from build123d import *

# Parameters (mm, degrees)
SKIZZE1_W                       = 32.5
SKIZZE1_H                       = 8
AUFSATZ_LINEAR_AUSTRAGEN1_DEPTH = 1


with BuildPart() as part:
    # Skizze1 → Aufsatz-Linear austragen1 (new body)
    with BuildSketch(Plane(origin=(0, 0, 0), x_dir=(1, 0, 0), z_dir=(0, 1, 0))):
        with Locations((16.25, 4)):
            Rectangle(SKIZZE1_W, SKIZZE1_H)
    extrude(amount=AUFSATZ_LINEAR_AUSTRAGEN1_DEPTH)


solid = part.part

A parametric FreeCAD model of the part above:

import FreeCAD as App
import Part
import Sketcher
from FreeCAD import Vector

doc = App.newDocument("Part")
params = doc.addObject("Spreadsheet::Sheet", "Params")
for row, (alias, value) in enumerate([
    ("sketch1_height", "8 mm"),
    ("sketch1_width", "32.5 mm"),
    ("pad1_length", "1 mm"),
], start=1):
    params.set(f"A{row}", alias)
    params.set(f"B{row}", "=" + value)
    params.setAlias(f"B{row}", alias)

body = doc.addObject("PartDesign::Body", "Body")

# Sketch on XZ plane
sketch1 = doc.addObject("Sketcher::SketchObject", "Sketch")
body.addObject(sketch1)
sketch1.AttachmentSupport = (doc.XZ_Plane, [""])
sketch1.MapMode = "FlatFace"
sketch1.addGeometry(Part.LineSegment(Vector(0, -8, 0), Vector(0, 0, 0)), False)
sketch1.addGeometry(Part.LineSegment(Vector(0, 0, 0), Vector(32, 0, 0)), False)
sketch1.addGeometry(Part.LineSegment(Vector(32, 0, 0), Vector(32, -8, 0)), False)
sketch1.addGeometry(Part.LineSegment(Vector(32, -8, 0), Vector(0, -8, 0)), False)
sketch1.addConstraint(Sketcher.Constraint("Coincident", 0, 2, 1, 1))
sketch1.addConstraint(Sketcher.Constraint("Coincident", 1, 2, 2, 1))
sketch1.addConstraint(Sketcher.Constraint("Coincident", 2, 2, 3, 1))
sketch1.addConstraint(Sketcher.Constraint("Coincident", 3, 2, 0, 1))
sketch1.addConstraint(Sketcher.Constraint("Vertical", 0))
sketch1.addConstraint(Sketcher.Constraint("Horizontal", 1))
sketch1.addConstraint(Sketcher.Constraint("Vertical", 2))
sketch1.addConstraint(Sketcher.Constraint("Horizontal", 3))
sketch1.addConstraint(Sketcher.Constraint("Coincident", 0, 2, -1, 1))
sketch1.addConstraint(Sketcher.Constraint("DistanceY", 0, 1, 0, 2, 8.0))
sketch1.addConstraint(Sketcher.Constraint("DistanceX", 1, 1, 1, 2, 32.5))
sketch1.setExpression("Constraints[9]", "Params.sketch1_height")
sketch1.setExpression("Constraints[10]", "Params.sketch1_width")
pad1 = doc.addObject("PartDesign::Pad", "Pad")
body.addObject(pad1)
pad1.Profile = sketch1
pad1.setExpression("Length", "Params.pad1_length")
pad1.Reversed = True

doc.recompute()
